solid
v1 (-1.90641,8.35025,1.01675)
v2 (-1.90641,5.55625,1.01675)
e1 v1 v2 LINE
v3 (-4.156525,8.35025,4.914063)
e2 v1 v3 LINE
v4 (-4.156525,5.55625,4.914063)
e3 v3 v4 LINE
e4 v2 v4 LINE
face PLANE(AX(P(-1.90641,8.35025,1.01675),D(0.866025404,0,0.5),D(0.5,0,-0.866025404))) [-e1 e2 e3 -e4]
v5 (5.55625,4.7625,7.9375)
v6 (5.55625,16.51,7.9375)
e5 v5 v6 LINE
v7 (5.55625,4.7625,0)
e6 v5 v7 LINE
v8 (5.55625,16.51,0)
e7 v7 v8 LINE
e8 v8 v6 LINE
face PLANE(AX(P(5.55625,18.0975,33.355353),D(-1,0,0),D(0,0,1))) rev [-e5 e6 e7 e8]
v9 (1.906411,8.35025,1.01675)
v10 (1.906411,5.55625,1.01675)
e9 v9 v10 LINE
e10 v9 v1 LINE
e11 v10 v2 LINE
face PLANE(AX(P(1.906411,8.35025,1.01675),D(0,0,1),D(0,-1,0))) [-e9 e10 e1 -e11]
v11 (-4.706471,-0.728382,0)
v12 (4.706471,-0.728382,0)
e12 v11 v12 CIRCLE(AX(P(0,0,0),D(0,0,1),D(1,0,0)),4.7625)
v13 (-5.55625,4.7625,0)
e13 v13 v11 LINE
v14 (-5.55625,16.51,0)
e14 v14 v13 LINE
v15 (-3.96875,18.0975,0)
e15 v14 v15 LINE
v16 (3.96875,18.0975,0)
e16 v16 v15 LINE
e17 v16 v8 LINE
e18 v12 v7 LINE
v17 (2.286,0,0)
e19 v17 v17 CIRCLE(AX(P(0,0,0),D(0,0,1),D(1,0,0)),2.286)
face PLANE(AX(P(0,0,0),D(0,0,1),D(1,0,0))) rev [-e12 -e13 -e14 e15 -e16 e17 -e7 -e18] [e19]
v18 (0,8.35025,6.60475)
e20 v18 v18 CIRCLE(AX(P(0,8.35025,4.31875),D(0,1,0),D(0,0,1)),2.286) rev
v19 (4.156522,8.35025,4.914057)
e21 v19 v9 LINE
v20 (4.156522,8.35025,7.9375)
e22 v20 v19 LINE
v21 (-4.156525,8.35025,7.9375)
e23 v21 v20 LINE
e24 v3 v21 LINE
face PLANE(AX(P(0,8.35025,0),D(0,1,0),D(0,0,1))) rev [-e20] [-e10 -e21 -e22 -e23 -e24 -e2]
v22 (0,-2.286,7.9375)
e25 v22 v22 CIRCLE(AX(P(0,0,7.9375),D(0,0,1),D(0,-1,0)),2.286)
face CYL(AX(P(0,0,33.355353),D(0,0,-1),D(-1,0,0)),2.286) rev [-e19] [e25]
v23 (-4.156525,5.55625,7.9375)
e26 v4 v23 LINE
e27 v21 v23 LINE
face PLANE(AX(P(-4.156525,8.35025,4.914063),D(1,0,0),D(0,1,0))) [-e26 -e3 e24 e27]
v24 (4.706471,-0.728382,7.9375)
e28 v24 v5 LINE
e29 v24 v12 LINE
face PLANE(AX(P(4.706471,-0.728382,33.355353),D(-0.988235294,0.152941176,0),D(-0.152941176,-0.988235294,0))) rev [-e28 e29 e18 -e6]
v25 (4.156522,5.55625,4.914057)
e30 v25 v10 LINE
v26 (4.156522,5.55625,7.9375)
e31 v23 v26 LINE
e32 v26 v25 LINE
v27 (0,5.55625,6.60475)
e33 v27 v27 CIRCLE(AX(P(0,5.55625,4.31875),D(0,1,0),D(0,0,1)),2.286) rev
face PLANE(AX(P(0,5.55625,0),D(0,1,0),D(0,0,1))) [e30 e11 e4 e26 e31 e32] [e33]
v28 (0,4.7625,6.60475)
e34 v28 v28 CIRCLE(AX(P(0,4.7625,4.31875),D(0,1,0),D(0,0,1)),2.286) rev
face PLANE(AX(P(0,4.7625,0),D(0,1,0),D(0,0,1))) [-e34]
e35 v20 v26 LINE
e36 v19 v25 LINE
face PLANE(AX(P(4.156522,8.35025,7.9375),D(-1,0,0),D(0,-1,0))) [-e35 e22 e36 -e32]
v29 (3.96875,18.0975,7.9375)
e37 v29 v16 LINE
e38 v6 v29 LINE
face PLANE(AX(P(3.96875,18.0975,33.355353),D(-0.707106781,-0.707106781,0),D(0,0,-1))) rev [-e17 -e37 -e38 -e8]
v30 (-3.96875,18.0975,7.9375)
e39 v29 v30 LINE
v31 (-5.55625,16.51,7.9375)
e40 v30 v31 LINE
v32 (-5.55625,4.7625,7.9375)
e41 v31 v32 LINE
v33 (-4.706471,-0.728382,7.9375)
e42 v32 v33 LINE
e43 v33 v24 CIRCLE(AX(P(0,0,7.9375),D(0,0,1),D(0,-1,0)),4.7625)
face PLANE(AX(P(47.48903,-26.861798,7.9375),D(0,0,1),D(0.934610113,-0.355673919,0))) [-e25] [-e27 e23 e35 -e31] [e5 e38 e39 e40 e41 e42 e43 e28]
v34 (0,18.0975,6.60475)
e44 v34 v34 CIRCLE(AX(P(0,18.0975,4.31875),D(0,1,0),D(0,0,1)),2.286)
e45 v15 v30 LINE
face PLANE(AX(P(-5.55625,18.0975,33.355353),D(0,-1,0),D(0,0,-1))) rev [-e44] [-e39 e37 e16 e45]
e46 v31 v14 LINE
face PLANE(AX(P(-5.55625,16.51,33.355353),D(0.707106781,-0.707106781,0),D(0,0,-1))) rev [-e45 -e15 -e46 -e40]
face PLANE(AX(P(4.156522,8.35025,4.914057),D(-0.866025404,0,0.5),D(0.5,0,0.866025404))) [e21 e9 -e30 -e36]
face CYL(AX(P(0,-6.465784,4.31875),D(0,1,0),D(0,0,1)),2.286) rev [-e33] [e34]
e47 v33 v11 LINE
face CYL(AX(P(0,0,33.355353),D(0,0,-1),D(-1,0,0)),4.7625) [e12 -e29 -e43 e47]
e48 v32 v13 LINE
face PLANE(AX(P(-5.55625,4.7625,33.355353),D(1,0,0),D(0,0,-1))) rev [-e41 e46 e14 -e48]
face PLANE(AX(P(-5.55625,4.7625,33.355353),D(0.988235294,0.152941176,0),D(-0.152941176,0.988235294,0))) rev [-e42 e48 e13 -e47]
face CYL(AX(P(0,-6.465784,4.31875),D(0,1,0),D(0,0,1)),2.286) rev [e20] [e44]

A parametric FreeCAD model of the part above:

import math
import FreeCAD as App
import Part
import Sketcher
Q = App.Units.Quantity


def edges_at(feature, points):
    """Names of the edges that pass closest to the given points."""
    edges = feature.Shape.Edges
    near = lambda p: min(range(len(edges)), key=lambda i: edges[i].distToShape(Part.Vertex(*p))[0])
    return sorted({f"Edge{near(p) + 1}" for p in points})

doc = App.newDocument("Part")
params = doc.addObject("Spreadsheet::Sheet", "Params")
for row, (alias, value) in enumerate([
    ("sketch1_diameter", "0.18 in"),
    ("sketch1_radius", "0.1875 in"),
    ("sketch1_width", "0.4375 in"),
    ("sketch1_height", "0.525 in"),
    ("sketch1_length", "0.21875 in"),
    ("pad1_length", "0.3125 in"),
    ("sketch2_diameter", "0.18 in"),
    ("pocket1_length", "0.525 in"),
    ("pocket2_length", "0.11 in"),
    ("chamfer_size", "0.0625 in"),
], start=1):
    params.set(f"A{row}", alias)
    params.set(f"B{row}", "=" + value)
    params.setAlias(f"B{row}", alias)

body = doc.addObject("PartDesign::Body", "Body")

sketch1 = body.newObject("Sketcher::SketchObject", "Sketch")
sketch1.AttachmentSupport = (doc.getObject("XY_Plane"), [""])
sketch1.MapMode = "FlatFace"
sketch1.addGeometry([
    Part.LineSegment(App.Vector(-5.6, 18.1, 0), App.Vector(-5.6, 4.8, 0)),
    Part.LineSegment(App.Vector(-5.6, 4.8, 0), App.Vector(-4.7, -0.7, 0)),
    Part.ArcOfCircle(Part.Circle(App.Vector(0, 0, 0), App.Vector(0, 0, 1), 4.8), math.radians(-171), math.radians(-9)),
    Part.LineSegment(App.Vector(4.7, -0.7, 0), App.Vector(5.6, 4.8, 0)),
    Part.LineSegment(App.Vector(5.6, 4.8, 0), App.Vector(5.6, 18.1, 0)),
    Part.LineSegment(App.Vector(5.6, 18.1, 0), App.Vector(-5.6, 18.1, 0)),
    Part.Circle(App.Vector(0, 0, 0), App.Vector(0, 0, 1), 2.3),
], False)
sketch1.addConstraint([
    Sketcher.Constraint("Coincident", 0, 2, 1, 1),
    Sketcher.Constraint("Tangent", 1, 2, 2, 1),
    Sketcher.Constraint("Tangent", 2, 2, 3, 1),
    Sketcher.Constraint("Coincident", 3, 2, 4, 1),
    Sketcher.Constraint("Coincident", 4, 2, 5, 1),
    Sketcher.Constraint("Coincident", 5, 2, 0, 1),
    Sketcher.Constraint("Vertical", 0),
    Sketcher.Constraint("Vertical", 4),
    Sketcher.Constraint("Horizontal", 5),
    Sketcher.Constraint("Coincident", 2, 3, -1, 1),
    Sketcher.Constraint("Coincident", 6, 3, -1, 1),
    Sketcher.Constraint("Symmetric", 0, 2, 3, 2, -2),
    Sketcher.Constraint("Diameter", 6, Q("0.18 in")),
    Sketcher.Constraint("Radius", 2, Q("0.1875 in")),
    Sketcher.Constraint("DistanceX", 5, 2, 5, 1, Q("0.4375 in")),
    Sketcher.Constraint("DistanceY", 0, 2, 0, 1, Q("0.525 in")),
    Sketcher.Constraint("Distance", 1, Q("0.21875 in")),
])
sketch1.setExpression("Constraints[12]", "Params.sketch1_diameter")
sketch1.setExpression("Constraints[13]", "Params.sketch1_radius")
sketch1.setExpression("Constraints[14]", "Params.sketch1_width")
sketch1.setExpression("Constraints[15]", "Params.sketch1_height")
sketch1.setExpression("Constraints[16]", "Params.sketch1_length")
pad1 = body.newObject("PartDesign::Pad", "Pad")
pad1.Profile = sketch1
pad1.setExpression("Length", "Params.pad1_length")

sketch2 = body.newObject("Sketcher::SketchObject", "Sketch001")
sketch2.AttachmentSupport = (doc.getObject("XZ_Plane"), [""])
sketch2.MapMode = "FlatFace"
sketch2.AttachmentOffset = App.Placement(App.Vector(0, 0, -0.7125 * 25.4), App.Rotation())
sketch2.addGeometry(Part.Circle(App.Vector(0, 4.3, 0), App.Vector(0, 0, 1), 2.3), False)
sketch2.addConstraint([
    Sketcher.Constraint("PointOnObject", 0, 3, -2),
    Sketcher.Constraint("Diameter", 0, Q("0.18 in")),
    Sketcher.Constraint("DistanceY", -1, 1, 0, 3, 4.31875),
])
sketch2.setExpression("Constraints[1]", "Params.sketch2_diameter")
pocket1 = body.newObject("PartDesign::Pocket", "Pocket")
pocket1.Profile = sketch2
pocket1.setExpression("Length", "Params.pocket1_length")
pocket1.Reversed = True

sketch3 = body.newObject("Sketcher::SketchObject", "Sketch002")
sketch3.AttachmentSupport = (doc.getObject("XZ_Plane"), [""])
sketch3.MapMode = "FlatFace"
sketch3.AttachmentOffset = App.Placement(App.Vector(0, 0, -0.21875 * 25.4), App.Rotation())
sketch3.addGeometry([
    Part.LineSegment(App.Vector(-1.9, 1, 0), App.Vector(-4.2, 4.9, 0)),
    Part.LineSegment(App.Vector(-4.2, 4.9, 0), App.Vector(-4.2, 7.9, 0)),
    Part.LineSegment(App.Vector(-4.2, 7.9, 0), App.Vector(4.2, 7.9, 0)),
    Part.LineSegment(App.Vector(4.2, 7.9, 0), App.Vector(4.2, 4.9, 0)),
    Part.LineSegment(App.Vector(4.2, 4.9, 0), App.Vector(1.9, 1, 0)),
    Part.LineSegment(App.Vector(1.9, 1, 0), App.Vector(-1.9, 1, 0)),
], False)
sketch3.addConstraint([
    Sketcher.Constraint("Coincident", 0, 2, 1, 1),
    Sketcher.Constraint("Coincident", 1, 2, 2, 1),
    Sketcher.Constraint("Coincident", 2, 2, 3, 1),
    Sketcher.Constraint("Coincident", 3, 2, 4, 1),
    Sketcher.Constraint("Coincident", 4, 2, 5, 1),
    Sketcher.Constraint("Coincident", 5, 2, 0, 1),
    Sketcher.Constraint("Vertical", 1),
    Sketcher.Constraint("Horizontal", 2),
    Sketcher.Constraint("Vertical", 3),
    Sketcher.Constraint("Horizontal", 5),
    Sketcher.Constraint("Symmetric", 0, 2, 3, 2, -2),
    Sketcher.Constraint("Angle", 0, Q("120 deg")),
    Sketcher.Constraint("Angle", 4, Q("-120 deg")),
    Sketcher.Constraint("DistanceY", -1, 1, 1, 2, Q("0.3125 in")),
    Sketcher.Constraint("DistanceX", 5, 2, 5, 1, 3.812821),
    Sketcher.Constraint("Distance", 0, 4.500229),
    Sketcher.Constraint("DistanceY", 1, 1, 1, 2, 3.023437),
])
pocket2 = body.newObject("PartDesign::Pocket", "Pocket001")
pocket2.Profile = sketch3
pocket2.setExpression("Length", "Params.pocket2_length")
doc.recompute()

chamfer = body.newObject("PartDesign::Chamfer", "Chamfer")
chamfer.Base = (pocket2, edges_at(pocket2, [(-5.556, 18.098, 3.969), (5.556, 18.098, 3.969)]))
chamfer.setExpression("Size", "Params.chamfer_size")

doc.recompute()
